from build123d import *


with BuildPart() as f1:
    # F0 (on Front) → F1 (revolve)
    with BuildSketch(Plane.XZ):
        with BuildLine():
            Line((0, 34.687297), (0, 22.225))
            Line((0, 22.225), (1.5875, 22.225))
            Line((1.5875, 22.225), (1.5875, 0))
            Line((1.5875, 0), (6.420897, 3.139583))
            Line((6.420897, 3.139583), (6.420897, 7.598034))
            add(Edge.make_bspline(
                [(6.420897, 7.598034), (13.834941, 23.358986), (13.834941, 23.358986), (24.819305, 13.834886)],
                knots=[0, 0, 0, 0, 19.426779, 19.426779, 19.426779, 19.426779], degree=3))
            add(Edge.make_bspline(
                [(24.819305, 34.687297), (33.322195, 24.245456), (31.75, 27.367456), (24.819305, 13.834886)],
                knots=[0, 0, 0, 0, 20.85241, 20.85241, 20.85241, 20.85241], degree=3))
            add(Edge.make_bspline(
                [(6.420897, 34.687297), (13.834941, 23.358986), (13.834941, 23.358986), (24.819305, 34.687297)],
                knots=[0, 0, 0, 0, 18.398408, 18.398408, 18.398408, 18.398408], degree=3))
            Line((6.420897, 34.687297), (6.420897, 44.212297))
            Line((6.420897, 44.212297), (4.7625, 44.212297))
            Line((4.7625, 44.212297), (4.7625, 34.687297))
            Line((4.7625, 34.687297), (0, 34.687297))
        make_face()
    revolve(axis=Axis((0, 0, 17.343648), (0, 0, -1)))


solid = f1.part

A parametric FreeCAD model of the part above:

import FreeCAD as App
import Part
import Sketcher
from FreeCAD import Vector
Q = App.Units.Quantity

doc = App.newDocument("Part")
params = doc.addObject("Spreadsheet::Sheet", "Params")
for row, (alias, value) in enumerate([
    ("sketch1_width", "0.0625 in"),
    ("sketch1_width2", "0.1875 in"),
    ("sketch1_height", "0.875 in"),
    ("sketch1_height2", "0.375 in"),
    ("revolution_angle", "360 deg"),
], start=1):
    params.set(f"A{row}", alias)
    params.set(f"B{row}", "=" + value)
    params.setAlias(f"B{row}", alias)

body = doc.addObject("PartDesign::Body", "Body")

# Sketch on XZ plane
sketch1 = body.newObject("Sketcher::SketchObject", "Sketch")
sketch1.AttachmentSupport = (doc.getObject("XZ_Plane"), [""])
sketch1.MapMode = "FlatFace"
sketch1.addGeometry(Part.LineSegment(Vector(0, 34.687297, 0), Vector(0, 22.225, 0)), False)
sketch1.addGeometry(Part.LineSegment(Vector(0, 22.225, 0), Vector(1.5875, 22.225, 0)), False)
sketch1.addGeometry(Part.LineSegment(Vector(1.5875, 22.225, 0), Vector(1.5875, 0, 0)), False)
sketch1.addGeometry(Part.LineSegment(Vector(1.5875, 0, 0), Vector(6.420897, 3.139583, 0)), False)
sketch1.addGeometry(Part.LineSegment(Vector(6.420897, 3.139583, 0), Vector(6.420897, 7.598034, 0)), False)
sketch1.addGeometry(Part.BSplineCurve([Vector(6.420897, 7.598034, 0), Vector(13.834941, 23.358986, 0), Vector(13.834941, 23.358986, 0), Vector(24.819305, 13.834886, 0)], [4, 4], [0, 19.426779], False, 3, [1, 1, 1, 1], False), False)
sketch1.addGeometry(Part.BSplineCurve([Vector(24.819305, 34.687297, 0), Vector(33.322195, 24.245456, 0), Vector(31.75, 27.367456, 0), Vector(24.819305, 13.834886, 0)], [4, 4], [0, 20.85241], False, 3, [1, 1, 1, 1], False), False)
sketch1.addGeometry(Part.BSplineCurve([Vector(6.420897, 34.687297, 0), Vector(13.834941, 23.358986, 0), Vector(13.834941, 23.358986, 0), Vector(24.819305, 34.687297, 0)], [4, 4], [0, 18.398408], False, 3, [1, 1, 1, 1], False), False)
sketch1.addGeometry(Part.LineSegment(Vector(6.420897, 34.687297, 0), Vector(6.420897, 44.212297, 0)), False)
sketch1.addGeometry(Part.LineSegment(Vector(6.420897, 44.212297, 0), Vector(4.7625, 44.212297, 0)), False)
sketch1.addGeometry(Part.LineSegment(Vector(4.7625, 44.212297, 0), Vector(4.7625, 34.687297, 0)), False)
sketch1.addGeometry(Part.LineSegment(Vector(4.7625, 34.687297, 0), Vector(0, 34.687297, 0)), False)
sketch1.addConstraint(Sketcher.Constraint("Block", 5))
sketch1.addConstraint(Sketcher.Constraint("Block", 6))
sketch1.addConstraint(Sketcher.Constraint("Block", 7))
sketch1.addConstraint(Sketcher.Constraint("Coincident", 0, 2, 1, 1))
sketch1.addConstraint(Sketcher.Constraint("Coincident", 1, 2, 2, 1))
sketch1.addConstraint(Sketcher.Constraint("Coincident", 2, 2, 3, 1))
sketch1.addConstraint(Sketcher.Constraint("Coincident", 3, 2, 4, 1))
sketch1.addConstraint(Sketcher.Constraint("Coincident", 4, 2, 5, 1))
sketch1.addConstraint(Sketcher.Constraint("Coincident", 7, 1, 8, 1))
sketch1.addConstraint(Sketcher.Constraint("Coincident", 8, 2, 9, 1))
sketch1.addConstraint(Sketcher.Constraint("Coincident", 9, 2, 10, 1))
sketch1.addConstraint(Sketcher.Constraint("Coincident", 10, 2, 11, 1))
sketch1.addConstraint(Sketcher.Constraint("Coincident", 11, 2, 0, 1))
sketch1.addConstraint(Sketcher.Constraint("Vertical", 0))
sketch1.addConstraint(Sketcher.Constraint("Horizontal", 1))
sketch1.addConstraint(Sketcher.Constraint("Vertical", 2))
sketch1.addConstraint(Sketcher.Constraint("Vertical", 4))
sketch1.addConstraint(Sketcher.Constraint("Vertical", 8))
sketch1.addConstraint(Sketcher.Constraint("Horizontal", 9))
sketch1.addConstraint(Sketcher.Constraint("Vertical", 10))
sketch1.addConstraint(Sketcher.Constraint("Horizontal", 11))
sketch1.addConstraint(Sketcher.Constraint("PointOnObject", 0, 2, -2))
sketch1.addConstraint(Sketcher.Constraint("PointOnObject", 2, 2, -1))
sketch1.addConstraint(Sketcher.Constraint("Equal", 8, 10))
sketch1.addConstraint(Sketcher.Constraint("DistanceX", 1, 1, 1, 2, Q("0.0625 in")))
sketch1.addConstraint(Sketcher.Constraint("DistanceX", 11, 2, 11, 1, Q("0.1875 in")))
sketch1.addConstraint(Sketcher.Constraint("DistanceY", 2, 2, 2, 1, Q("0.875 in")))
sketch1.addConstraint(Sketcher.Constraint("DistanceY", 8, 1, 8, 2, Q("0.375 in")))
sketch1.addConstraint(Sketcher.Constraint("DistanceY", 4, 1, 4, 2, Q("4.458451 mm")))
sketch1.setExpression("Constraints[24]", "Params.sketch1_width")
sketch1.setExpression("Constraints[25]", "Params.sketch1_width2")
sketch1.setExpression("Constraints[26]", "Params.sketch1_height")
sketch1.setExpression("Constraints[27]", "Params.sketch1_height2")
revolution = body.newObject("PartDesign::Revolution", "Revolution")
revolution.Profile = sketch1
revolution.ReferenceAxis = (sketch1, ["V_Axis"])
revolution.setExpression("Angle", "Params.revolution_angle")

doc.recompute()
